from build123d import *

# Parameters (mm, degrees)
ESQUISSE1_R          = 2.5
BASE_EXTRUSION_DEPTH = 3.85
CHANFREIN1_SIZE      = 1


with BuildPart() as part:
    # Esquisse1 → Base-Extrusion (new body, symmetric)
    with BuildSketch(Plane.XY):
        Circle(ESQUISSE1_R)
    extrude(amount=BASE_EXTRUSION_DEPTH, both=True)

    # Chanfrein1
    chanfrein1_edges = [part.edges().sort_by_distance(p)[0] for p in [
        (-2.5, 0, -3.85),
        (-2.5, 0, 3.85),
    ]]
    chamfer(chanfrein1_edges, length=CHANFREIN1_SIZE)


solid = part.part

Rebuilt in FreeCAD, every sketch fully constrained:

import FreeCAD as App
import Part
import Sketcher
from FreeCAD import Vector
Q = App.Units.Quantity


def edges_at(feature, points):
    """Names of the edges that pass closest to the given points."""
    edges = feature.Shape.Edges
    near = lambda p: min(range(len(edges)), key=lambda i: edges[i].distToShape(Part.Vertex(*p))[0])
    return sorted({f"Edge{near(p) + 1}" for p in points})

doc = App.newDocument("Part")
body = doc.addObject("PartDesign::Body", "Body")

sketch1 = body.newObject("Sketcher::SketchObject", "Sketch")
sketch1.AttachmentSupport = (doc.getObject("XY_Plane"), [""])
sketch1.MapMode = "FlatFace"
sketch1.addGeometry(Part.Circle(Vector(0, 0, 0), Vector(0, 0, 1), 2.5), False)
sketch1.addConstraint(Sketcher.Constraint("Coincident", 0, 3, -1, 1))
sketch1.addConstraint(Sketcher.Constraint("Diameter", 0, Q("5 mm")))
pad1 = body.newObject("PartDesign::Pad", "Pad")
pad1.Profile = sketch1
pad1.Length = 7.7
pad1.Midplane = True
doc.recompute()

chamfer = body.newObject("PartDesign::Chamfer", "Chamfer")
chamfer.Base = (pad1, edges_at(pad1, [(-2.5, 0, -3.85), (-2.5, 0, 3.85)]))
chamfer.Size = 1

doc.recompute()
